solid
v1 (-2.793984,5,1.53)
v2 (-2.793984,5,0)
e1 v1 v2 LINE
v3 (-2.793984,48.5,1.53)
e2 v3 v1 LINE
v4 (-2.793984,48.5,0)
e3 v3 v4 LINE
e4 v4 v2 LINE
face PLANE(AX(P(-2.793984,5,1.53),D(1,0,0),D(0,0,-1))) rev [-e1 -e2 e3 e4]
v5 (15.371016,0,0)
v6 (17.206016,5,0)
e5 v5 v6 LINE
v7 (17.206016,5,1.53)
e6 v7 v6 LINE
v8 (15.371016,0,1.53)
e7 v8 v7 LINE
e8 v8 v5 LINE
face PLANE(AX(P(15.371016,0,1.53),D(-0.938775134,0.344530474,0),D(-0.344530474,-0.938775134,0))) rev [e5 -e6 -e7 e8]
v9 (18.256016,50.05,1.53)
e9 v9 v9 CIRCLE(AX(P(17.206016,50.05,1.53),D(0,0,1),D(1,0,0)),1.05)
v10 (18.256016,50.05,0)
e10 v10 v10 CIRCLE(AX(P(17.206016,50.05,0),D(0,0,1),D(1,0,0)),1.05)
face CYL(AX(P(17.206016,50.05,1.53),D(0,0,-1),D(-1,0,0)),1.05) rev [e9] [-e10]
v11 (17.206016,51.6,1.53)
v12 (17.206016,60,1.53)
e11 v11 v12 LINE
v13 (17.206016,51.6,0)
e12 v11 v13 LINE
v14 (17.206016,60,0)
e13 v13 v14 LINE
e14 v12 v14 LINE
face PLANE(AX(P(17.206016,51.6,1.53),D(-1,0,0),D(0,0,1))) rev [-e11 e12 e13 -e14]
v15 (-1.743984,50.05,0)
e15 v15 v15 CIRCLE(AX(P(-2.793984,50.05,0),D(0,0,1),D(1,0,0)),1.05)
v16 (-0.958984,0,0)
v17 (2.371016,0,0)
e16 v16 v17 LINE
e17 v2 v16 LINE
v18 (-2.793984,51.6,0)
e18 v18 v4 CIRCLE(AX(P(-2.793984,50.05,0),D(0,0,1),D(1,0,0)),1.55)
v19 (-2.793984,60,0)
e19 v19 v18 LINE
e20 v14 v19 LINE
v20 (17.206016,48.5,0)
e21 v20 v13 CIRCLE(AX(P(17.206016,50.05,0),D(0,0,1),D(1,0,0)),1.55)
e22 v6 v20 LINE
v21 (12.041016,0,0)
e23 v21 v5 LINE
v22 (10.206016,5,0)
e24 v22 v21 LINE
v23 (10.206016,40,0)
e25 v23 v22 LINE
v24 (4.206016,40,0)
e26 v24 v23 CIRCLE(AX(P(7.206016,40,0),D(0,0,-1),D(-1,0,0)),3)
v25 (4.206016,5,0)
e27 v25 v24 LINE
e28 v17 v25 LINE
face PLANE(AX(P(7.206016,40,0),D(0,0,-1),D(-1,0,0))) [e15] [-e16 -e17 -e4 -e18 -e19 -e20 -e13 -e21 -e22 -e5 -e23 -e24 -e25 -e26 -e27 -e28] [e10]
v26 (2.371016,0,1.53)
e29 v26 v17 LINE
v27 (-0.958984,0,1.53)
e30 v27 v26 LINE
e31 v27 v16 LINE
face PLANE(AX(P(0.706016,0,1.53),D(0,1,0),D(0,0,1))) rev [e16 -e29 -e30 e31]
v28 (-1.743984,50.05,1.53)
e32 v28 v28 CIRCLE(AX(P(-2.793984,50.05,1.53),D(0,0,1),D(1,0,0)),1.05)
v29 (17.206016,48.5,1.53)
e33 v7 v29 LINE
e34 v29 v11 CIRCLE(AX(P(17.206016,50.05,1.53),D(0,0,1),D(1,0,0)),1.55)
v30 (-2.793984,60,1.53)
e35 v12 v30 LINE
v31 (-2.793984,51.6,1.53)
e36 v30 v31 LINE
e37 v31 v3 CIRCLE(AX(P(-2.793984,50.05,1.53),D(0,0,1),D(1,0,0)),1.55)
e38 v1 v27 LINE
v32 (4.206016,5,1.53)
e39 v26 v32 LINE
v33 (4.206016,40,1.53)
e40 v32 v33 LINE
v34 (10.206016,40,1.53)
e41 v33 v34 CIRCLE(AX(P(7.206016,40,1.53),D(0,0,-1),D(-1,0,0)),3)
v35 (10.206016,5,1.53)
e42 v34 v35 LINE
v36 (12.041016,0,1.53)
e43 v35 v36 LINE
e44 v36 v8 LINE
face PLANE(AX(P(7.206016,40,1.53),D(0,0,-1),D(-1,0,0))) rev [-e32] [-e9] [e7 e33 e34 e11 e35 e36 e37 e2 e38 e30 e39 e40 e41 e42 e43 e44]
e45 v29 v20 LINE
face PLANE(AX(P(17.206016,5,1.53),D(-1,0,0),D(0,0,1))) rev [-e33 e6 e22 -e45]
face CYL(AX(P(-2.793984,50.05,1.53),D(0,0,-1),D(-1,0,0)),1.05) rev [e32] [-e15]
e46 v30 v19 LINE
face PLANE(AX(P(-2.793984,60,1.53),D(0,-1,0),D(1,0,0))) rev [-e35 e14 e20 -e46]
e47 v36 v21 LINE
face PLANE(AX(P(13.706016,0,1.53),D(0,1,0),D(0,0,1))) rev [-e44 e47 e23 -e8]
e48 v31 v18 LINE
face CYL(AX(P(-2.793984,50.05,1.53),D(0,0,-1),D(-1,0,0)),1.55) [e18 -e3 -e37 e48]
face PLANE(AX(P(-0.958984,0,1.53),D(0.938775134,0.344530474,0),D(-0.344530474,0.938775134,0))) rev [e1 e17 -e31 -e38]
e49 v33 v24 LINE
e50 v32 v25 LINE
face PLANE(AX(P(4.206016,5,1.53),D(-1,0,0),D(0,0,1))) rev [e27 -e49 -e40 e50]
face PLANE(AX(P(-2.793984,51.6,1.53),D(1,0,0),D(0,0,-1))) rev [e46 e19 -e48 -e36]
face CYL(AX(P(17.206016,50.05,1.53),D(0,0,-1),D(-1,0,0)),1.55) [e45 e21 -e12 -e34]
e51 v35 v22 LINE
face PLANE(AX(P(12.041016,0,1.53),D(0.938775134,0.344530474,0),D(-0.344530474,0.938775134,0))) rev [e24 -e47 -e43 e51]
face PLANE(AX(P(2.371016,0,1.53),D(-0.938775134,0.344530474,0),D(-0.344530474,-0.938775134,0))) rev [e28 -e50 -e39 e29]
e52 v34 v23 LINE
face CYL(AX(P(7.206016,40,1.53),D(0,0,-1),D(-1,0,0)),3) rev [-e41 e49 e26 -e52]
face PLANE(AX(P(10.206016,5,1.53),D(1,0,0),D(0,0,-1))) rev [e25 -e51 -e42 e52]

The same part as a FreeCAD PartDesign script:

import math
import FreeCAD as App
import Part
import Sketcher
from FreeCAD import Vector
Q = App.Units.Quantity

doc = App.newDocument("Part")
body = doc.addObject("PartDesign::Body", "Body")

# Sketch on XY plane
sketch1 = body.newObject("Sketcher::SketchObject", "Sketch")
sketch1.AttachmentSupport = (doc.getObject("XY_Plane"), [""])
sketch1.MapMode = "FlatFace"
sketch1.addGeometry(Part.LineSegment(Vector(10.2, 40, 0), Vector(10.2, 5, 0)), False)
sketch1.addGeometry(Part.LineSegment(Vector(10.2, 5, 0), Vector(12, 0, 0)), False)
sketch1.addGeometry(Part.LineSegment(Vector(12, 0, 0), Vector(15.4, 0, 0)), False)
sketch1.addGeometry(Part.LineSegment(Vector(15.4, 0, 0), Vector(17.2, 5, 0)), False)
sketch1.addGeometry(Part.LineSegment(Vector(17.2, 5, 0), Vector(17.2, 48.5, 0)), False)
sketch1.addGeometry(Part.ArcOfCircle(Part.Circle(Vector(17.2, 50, 0), Vector(0, 0, 1), 1.6), math.radians(-90), math.radians(90)), False)
sketch1.addGeometry(Part.LineSegment(Vector(17.2, 51.6, 0), Vector(17.2, 60, 0)), False)
sketch1.addGeometry(Part.LineSegment(Vector(17.2, 60, 0), Vector(-2.8, 60, 0)), False)
sketch1.addGeometry(Part.LineSegment(Vector(-2.8, 60, 0), Vector(-2.8, 51.6, 0)), False)
sketch1.addGeometry(Part.ArcOfCircle(Part.Circle(Vector(-2.8, 50, 0), Vector(0, 0, 1), 1.6), math.radians(90), math.radians(270)), False)
sketch1.addGeometry(Part.LineSegment(Vector(-2.8, 48.5, 0), Vector(-2.8, 5, 0)), False)
sketch1.addGeometry(Part.LineSegment(Vector(-2.8, 5, 0), Vector(-1, 0, 0)), False)
sketch1.addGeometry(Part.LineSegment(Vector(-1, 0, 0), Vector(2.4, 0, 0)), False)
sketch1.addGeometry(Part.LineSegment(Vector(2.4, 0, 0), Vector(4.2, 5, 0)), False)
sketch1.addGeometry(Part.LineSegment(Vector(4.2, 5, 0), Vector(4.2, 40, 0)), False)
sketch1.addGeometry(Part.ArcOfCircle(Part.Circle(Vector(7.2, 40, 0), Vector(0, 0, 1), 3), math.radians(0), math.radians(180)), False)
sketch1.addGeometry(Part.Circle(Vector(17.2, 50, 0), Vector(0, 0, 1), 1.1), False)
sketch1.addGeometry(Part.Circle(Vector(-2.8, 50, 0), Vector(0, 0, 1), 1.1), False)
sketch1.addConstraint(Sketcher.Constraint("Coincident", 0, 2, 1, 1))
sketch1.addConstraint(Sketcher.Constraint("Coincident", 1, 2, 2, 1))
sketch1.addConstraint(Sketcher.Constraint("Coincident", 2, 2, 3, 1))
sketch1.addConstraint(Sketcher.Constraint("Coincident", 3, 2, 4, 1))
sketch1.addConstraint(Sketcher.Constraint("Coincident", 4, 2, 5, 1))
sketch1.addConstraint(Sketcher.Constraint("Coincident", 5, 2, 6, 1))
sketch1.addConstraint(Sketcher.Constraint("Coincident", 6, 2, 7, 1))
sketch1.addConstraint(Sketcher.Constraint("Coincident", 7, 2, 8, 1))
sketch1.addConstraint(Sketcher.Constraint("Coincident", 8, 2, 9, 1))
sketch1.addConstraint(Sketcher.Constraint("Coincident", 9, 2, 10, 1))
sketch1.addConstraint(Sketcher.Constraint("Coincident", 10, 2, 11, 1))
sketch1.addConstraint(Sketcher.Constraint("Coincident", 11, 2, 12, 1))
sketch1.addConstraint(Sketcher.Constraint("Coincident", 12, 2, 13, 1))
sketch1.addConstraint(Sketcher.Constraint("Coincident", 13, 2, 14, 1))
sketch1.addConstraint(Sketcher.Constraint("Tangent", 14, 2, 15, 2))
sketch1.addConstraint(Sketcher.Constraint("Tangent", 15, 1, 0, 1))
sketch1.addConstraint(Sketcher.Constraint("Vertical", 0))
sketch1.addConstraint(Sketcher.Constraint("Horizontal", 2))
sketch1.addConstraint(Sketcher.Constraint("Vertical", 4))
sketch1.addConstraint(Sketcher.Constraint("Vertical", 6))
sketch1.addConstraint(Sketcher.Constraint("Horizontal", 7))
sketch1.addConstraint(Sketcher.Constraint("Vertical", 8))
sketch1.addConstraint(Sketcher.Constraint("Vertical", 10))
sketch1.addConstraint(Sketcher.Constraint("Horizontal", 12))
sketch1.addConstraint(Sketcher.Constraint("Vertical", 14))
sketch1.addConstraint(Sketcher.Constraint("Coincident", 16, 3, 5, 3))
sketch1.addConstraint(Sketcher.Constraint("Coincident", 17, 3, 9, 3))
sketch1.addConstraint(Sketcher.Constraint("Equal", 5, 9))
sketch1.addConstraint(Sketcher.Constraint("Equal", 16, 17))
sketch1.addConstraint(Sketcher.Constraint("PointOnObject", 1, 2, -1))
sketch1.addConstraint(Sketcher.Constraint("PointOnObject", 11, 2, -1))
sketch1.addConstraint(Sketcher.Constraint("Parallel", 1, 11))
sketch1.addConstraint(Sketcher.Constraint("Parallel", 3, 13))
sketch1.addConstraint(Sketcher.Constraint("Horizontal", 5, 3, 9, 3))
sketch1.addConstraint(Sketcher.Constraint("Horizontal", 0, 2, 3, 2))
sketch1.addConstraint(Sketcher.Constraint("Horizontal", 3, 2, 10, 2))
sketch1.addConstraint(Sketcher.Constraint("Horizontal", 10, 2, 13, 2))
sketch1.addConstraint(Sketcher.Constraint("Vertical", 16, 3, 3, 2))
sketch1.addConstraint(Sketcher.Constraint("Vertical", 4, 2, 5, 2))
sketch1.addConstraint(Sketcher.Constraint("Vertical", 17, 3, 7, 2))
sketch1.addConstraint(Sketcher.Constraint("Vertical", 8, 2, 9, 2))
sketch1.addConstraint(Sketcher.Constraint("Equal", 2, 12))
sketch1.addConstraint(Sketcher.Constraint("Equal", 1, 3))
sketch1.addConstraint(Sketcher.Constraint("Radius", 15, Q("3 mm")))
sketch1.addConstraint(Sketcher.Constraint("Diameter", 16, Q("2.1 mm")))
sketch1.addConstraint(Sketcher.Constraint("DistanceX", 7, 2, 7, 1, Q("20 mm")))
sketch1.addConstraint(Sketcher.Constraint("DistanceY", 0, 2, 0, 1, Q("35 mm")))
sketch1.addConstraint(Sketcher.Constraint("Radius", 5, Q("1.55 mm")))
sketch1.addConstraint(Sketcher.Constraint("DistanceY", 4, 1, 4, 2, Q("43.5 mm")))
sketch1.addConstraint(Sketcher.Constraint("DistanceY", 6, 1, 6, 2, Q("8.4 mm")))
sketch1.addConstraint(Sketcher.Constraint("DistanceY", -1, 1, 15, 3, Q("40 mm")))
sketch1.addConstraint(Sketcher.Constraint("DistanceX", 2, 1, 2, 2, Q("3.33 mm")))
sketch1.addConstraint(Sketcher.Constraint("DistanceX", -1, 1, 5, 3, Q("17.206016 mm")))
pad1 = body.newObject("PartDesign::Pad", "Pad")
pad1.Profile = sketch1
pad1.Length = 1.53

doc.recompute()
